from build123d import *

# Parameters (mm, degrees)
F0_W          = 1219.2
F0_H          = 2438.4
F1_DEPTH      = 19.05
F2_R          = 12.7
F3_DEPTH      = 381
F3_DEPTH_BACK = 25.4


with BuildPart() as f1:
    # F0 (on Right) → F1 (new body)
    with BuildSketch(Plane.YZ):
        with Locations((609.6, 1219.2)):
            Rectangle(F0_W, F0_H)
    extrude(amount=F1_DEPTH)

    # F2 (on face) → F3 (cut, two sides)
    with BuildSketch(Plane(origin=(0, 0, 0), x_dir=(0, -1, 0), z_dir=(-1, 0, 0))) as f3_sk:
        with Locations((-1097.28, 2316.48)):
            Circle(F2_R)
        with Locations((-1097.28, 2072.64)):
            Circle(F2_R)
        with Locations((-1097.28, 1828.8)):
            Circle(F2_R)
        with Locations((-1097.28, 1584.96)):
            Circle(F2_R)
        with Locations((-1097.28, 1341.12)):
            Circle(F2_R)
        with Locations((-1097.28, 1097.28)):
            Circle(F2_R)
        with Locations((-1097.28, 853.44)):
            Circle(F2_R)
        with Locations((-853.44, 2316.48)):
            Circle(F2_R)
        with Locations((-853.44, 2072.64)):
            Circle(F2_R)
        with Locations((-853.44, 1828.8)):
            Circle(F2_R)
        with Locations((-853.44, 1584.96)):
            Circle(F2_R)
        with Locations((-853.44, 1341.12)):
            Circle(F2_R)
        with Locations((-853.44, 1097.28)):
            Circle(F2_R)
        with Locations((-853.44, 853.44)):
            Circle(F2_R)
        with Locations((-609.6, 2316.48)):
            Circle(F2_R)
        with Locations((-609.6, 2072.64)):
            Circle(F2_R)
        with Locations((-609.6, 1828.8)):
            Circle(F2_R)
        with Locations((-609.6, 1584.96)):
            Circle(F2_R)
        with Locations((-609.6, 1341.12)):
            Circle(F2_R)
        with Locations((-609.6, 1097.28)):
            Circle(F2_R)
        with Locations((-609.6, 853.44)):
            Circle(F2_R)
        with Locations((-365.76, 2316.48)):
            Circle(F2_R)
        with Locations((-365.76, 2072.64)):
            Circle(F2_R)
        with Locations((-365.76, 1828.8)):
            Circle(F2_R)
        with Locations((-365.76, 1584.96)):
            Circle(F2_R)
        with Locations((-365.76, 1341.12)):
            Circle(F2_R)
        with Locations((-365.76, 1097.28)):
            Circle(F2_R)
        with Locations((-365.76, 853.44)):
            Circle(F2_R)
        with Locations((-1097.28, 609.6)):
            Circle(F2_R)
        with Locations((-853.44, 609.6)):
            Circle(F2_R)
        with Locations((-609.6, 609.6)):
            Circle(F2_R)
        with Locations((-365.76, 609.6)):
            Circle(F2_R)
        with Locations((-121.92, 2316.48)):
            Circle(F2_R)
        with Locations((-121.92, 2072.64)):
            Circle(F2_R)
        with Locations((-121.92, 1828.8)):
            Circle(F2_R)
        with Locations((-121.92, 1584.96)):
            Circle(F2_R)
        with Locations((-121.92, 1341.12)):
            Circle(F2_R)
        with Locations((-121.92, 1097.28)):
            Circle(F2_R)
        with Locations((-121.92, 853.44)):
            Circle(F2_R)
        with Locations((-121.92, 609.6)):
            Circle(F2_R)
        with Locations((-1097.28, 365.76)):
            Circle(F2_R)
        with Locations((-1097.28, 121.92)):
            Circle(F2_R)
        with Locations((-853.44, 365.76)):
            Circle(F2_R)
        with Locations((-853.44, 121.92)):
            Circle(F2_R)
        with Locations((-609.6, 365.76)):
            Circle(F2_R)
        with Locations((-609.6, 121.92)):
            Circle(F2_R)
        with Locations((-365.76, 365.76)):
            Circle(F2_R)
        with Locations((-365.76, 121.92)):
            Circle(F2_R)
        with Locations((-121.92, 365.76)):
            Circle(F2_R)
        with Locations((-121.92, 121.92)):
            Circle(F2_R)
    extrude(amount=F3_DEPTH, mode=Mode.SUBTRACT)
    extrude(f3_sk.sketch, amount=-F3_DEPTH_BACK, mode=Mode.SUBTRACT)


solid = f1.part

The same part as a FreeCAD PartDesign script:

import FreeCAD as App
import Part
import Sketcher
Q = App.Units.Quantity


def add_polygon(sketch, points):
    """Adds a closed chain of lines whose ends are joined by coincident constraints."""
    first, n = sketch.GeometryCount, len(points)
    for a, b in zip(points, points[1:] + points[:1]):
        sketch.addGeometry(Part.LineSegment(App.Vector(*a, 0), App.Vector(*b, 0)), False)
    for i in range(n):
        sketch.addConstraint(Sketcher.Constraint("Coincident", first + i, 2, first + (i + 1) % n, 1))

doc = App.newDocument("Part")
body = doc.addObject("PartDesign::Body", "Body")

# Sketch on YZ plane
sketch1 = body.newObject("Sketcher::SketchObject", "Sketch")
sketch1.AttachmentSupport = (doc.getObject("YZ_Plane"), [""])
sketch1.MapMode = "FlatFace"
add_polygon(sketch1, [(0, 2438.4), (0, 0), (1219.2, 0), (1219.2, 2438.4)])  # lines 0-3
sketch1.addConstraint(Sketcher.Constraint("Vertical", 0))
sketch1.addConstraint(Sketcher.Constraint("Horizontal", 1))
sketch1.addConstraint(Sketcher.Constraint("Vertical", 2))
sketch1.addConstraint(Sketcher.Constraint("Horizontal", 3))
sketch1.addConstraint(Sketcher.Constraint("Coincident", 0, 2, -1, 1))
sketch1.addConstraint(Sketcher.Constraint("DistanceX", 1, 1, 1, 2, Q("48 in")))
sketch1.addConstraint(Sketcher.Constraint("DistanceY", 0, 2, 0, 1, Q("96 in")))
pad1 = body.newObject("PartDesign::Pad", "Pad")
pad1.Profile = sketch1
pad1.Length = Q("0.75 in")

# Sketch on YZ plane
sketch2 = body.newObject("Sketcher::SketchObject", "Sketch001")
sketch2.AttachmentSupport = (doc.getObject("YZ_Plane"), [""])
sketch2.MapMode = "FlatFace"
sketch2.addGeometry(Part.Circle(App.Vector(1097.28, 2316.48, 0), App.Vector(0, 0, 1), 12.7), False)
sketch2.addGeometry(Part.Circle(App.Vector(1097.28, 2072.64, 0), App.Vector(0, 0, 1), 12.7), False)
sketch2.addGeometry(Part.Circle(App.Vector(1097.28, 1828.8, 0), App.Vector(0, 0, 1), 12.7), False)
sketch2.addGeometry(Part.Circle(App.Vector(1097.28, 1584.96, 0), App.Vector(0, 0, 1), 12.7), False)
sketch2.addGeometry(Part.Circle(App.Vector(1097.28, 1341.12, 0), App.Vector(0, 0, 1), 12.7), False)
sketch2.addGeometry(Part.Circle(App.Vector(1097.28, 1097.28, 0), App.Vector(0, 0, 1), 12.7), False)
sketch2.addGeometry(Part.Circle(App.Vector(1097.28, 853.44, 0), App.Vector(0, 0, 1), 12.7), False)
sketch2.addGeometry(Part.Circle(App.Vector(853.44, 2316.48, 0), App.Vector(0, 0, 1), 12.7), False)
sketch2.addGeometry(Part.Circle(App.Vector(853.44, 2072.64, 0), App.Vector(0, 0, 1), 12.7), False)
sketch2.addGeometry(Part.Circle(App.Vector(853.44, 1828.8, 0), App.Vector(0, 0, 1), 12.7), False)
sketch2.addGeometry(Part.Circle(App.Vector(853.44, 1584.96, 0), App.Vector(0, 0, 1), 12.7), False)
sketch2.addGeometry(Part.Circle(App.Vector(853.44, 1341.12, 0), App.Vector(0, 0, 1), 12.7), False)
sketch2.addGeometry(Part.Circle(App.Vector(853.44, 1097.28, 0), App.Vector(0, 0, 1), 12.7), False)
sketch2.addGeometry(Part.Circle(App.Vector(853.44, 853.44, 0), App.Vector(0, 0, 1), 12.7), False)
sketch2.addGeometry(Part.Circle(App.Vector(609.6, 2316.48, 0), App.Vector(0, 0, 1), 12.7), False)
sketch2.addGeometry(Part.Circle(App.Vector(609.6, 2072.64, 0), App.Vector(0, 0, 1), 12.7), False)
sketch2.addGeometry(Part.Circle(App.Vector(609.6, 1828.8, 0), App.Vector(0, 0, 1), 12.7), False)
sketch2.addGeometry(Part.Circle(App.Vector(609.6, 1584.96, 0), App.Vector(0, 0, 1), 12.7), False)
sketch2.addGeometry(Part.Circle(App.Vector(609.6, 1341.12, 0), App.Vector(0, 0, 1), 12.7), False)
sketch2.addGeometry(Part.Circle(App.Vector(609.6, 1097.28, 0), App.Vector(0, 0, 1), 12.7), False)
sketch2.addGeometry(Part.Circle(App.Vector(609.6, 853.44, 0), App.Vector(0, 0, 1), 12.7), False)
sketch2.addGeometry(Part.Circle(App.Vector(365.76, 2316.48, 0), App.Vector(0, 0, 1), 12.7), False)
sketch2.addGeometry(Part.Circle(App.Vector(365.76, 2072.64, 0), App.Vector(0, 0, 1), 12.7), False)
sketch2.addGeometry(Part.Circle(App.Vector(365.76, 1828.8, 0), App.Vector(0, 0, 1), 12.7), False)
sketch2.addGeometry(Part.Circle(App.Vector(365.76, 1584.96, 0), App.Vector(0, 0, 1), 12.7), False)
sketch2.addGeometry(Part.Circle(App.Vector(365.76, 1341.12, 0), App.Vector(0, 0, 1), 12.7), False)
sketch2.addGeometry(Part.Circle(App.Vector(365.76, 1097.28, 0), App.Vector(0, 0, 1), 12.7), False)
sketch2.addGeometry(Part.Circle(App.Vector(365.76, 853.44, 0), App.Vector(0, 0, 1), 12.7), False)
sketch2.addGeometry(Part.Circle(App.Vector(1097.28, 609.6, 0), App.Vector(0, 0, 1), 12.7), False)
sketch2.addGeometry(Part.Circle(App.Vector(853.44, 609.6, 0), App.Vector(0, 0, 1), 12.7), False)
sketch2.addGeometry(Part.Circle(App.Vector(609.6, 609.6, 0), App.Vector(0, 0, 1), 12.7), False)
sketch2.addGeometry(Part.Circle(App.Vector(365.76, 609.6, 0), App.Vector(0, 0, 1), 12.7), False)
sketch2.addGeometry(Part.Circle(App.Vector(121.92, 2316.48, 0), App.Vector(0, 0, 1), 12.7), False)
sketch2.addGeometry(Part.Circle(App.Vector(121.92, 2072.64, 0), App.Vector(0, 0, 1), 12.7), False)
sketch2.addGeometry(Part.Circle(App.Vector(121.92, 1828.8, 0), App.Vector(0, 0, 1), 12.7), False)
sketch2.addGeometry(Part.Circle(App.Vector(121.92, 1584.96, 0), App.Vector(0, 0, 1), 12.7), False)
sketch2.addGeometry(Part.Circle(App.Vector(121.92, 1341.12, 0), App.Vector(0, 0, 1), 12.7), False)
sketch2.addGeometry(Part.Circle(App.Vector(121.92, 1097.28, 0), App.Vector(0, 0, 1), 12.7), False)
sketch2.addGeometry(Part.Circle(App.Vector(121.92, 853.44, 0), App.Vector(0, 0, 1), 12.7), False)
sketch2.addGeometry(Part.Circle(App.Vector(121.92, 609.6, 0), App.Vector(0, 0, 1), 12.7), False)
sketch2.addGeometry(Part.Circle(App.Vector(1097.28, 365.76, 0), App.Vector(0, 0, 1), 12.7), False)
sketch2.addGeometry(Part.Circle(App.Vector(1097.28, 121.92, 0), App.Vector(0, 0, 1), 12.7), False)
sketch2.addGeometry(Part.Circle(App.Vector(853.44, 365.76, 0), App.Vector(0, 0, 1), 12.7), False)
sketch2.addGeometry(Part.Circle(App.Vector(853.44, 121.92, 0), App.Vector(0, 0, 1), 12.7), False)
sketch2.addGeometry(Part.Circle(App.Vector(609.6, 365.76, 0), App.Vector(0, 0, 1), 12.7), False)
sketch2.addGeometry(Part.Circle(App.Vector(609.6, 121.92, 0), App.Vector(0, 0, 1), 12.7), False)
sketch2.addGeometry(Part.Circle(App.Vector(365.76, 365.76, 0), App.Vector(0, 0, 1), 12.7), False)
sketch2.addGeometry(Part.Circle(App.Vector(365.76, 121.92, 0), App.Vector(0, 0, 1), 12.7), False)
sketch2.addGeometry(Part.Circle(App.Vector(121.92, 365.76, 0), App.Vector(0, 0, 1), 12.7), False)
sketch2.addGeometry(Part.Circle(App.Vector(121.92, 121.92, 0), App.Vector(0, 0, 1), 12.7), False)
sketch2.addConstraint(Sketcher.Constraint("Equal", 0, 1))
sketch2.addConstraint(Sketcher.Constraint("Equal", 1, 2))
sketch2.addConstraint(Sketcher.Constraint("Equal", 2, 3))
sketch2.addConstraint(Sketcher.Constraint("Equal", 3, 4))
sketch2.addConstraint(Sketcher.Constraint("Equal", 4, 5))
sketch2.addConstraint(Sketcher.Constraint("Equal", 5, 6))
sketch2.addConstraint(Sketcher.Constraint("Equal", 6, 7))
sketch2.addConstraint(Sketcher.Constraint("Equal", 7, 8))
sketch2.addConstraint(Sketcher.Constraint("Equal", 8, 9))
sketch2.addConstraint(Sketcher.Constraint("Equal", 9, 10))
sketch2.addConstraint(Sketcher.Constraint("Equal", 10, 11))
sketch2.addConstraint(Sketcher.Constraint("Equal", 11, 12))
sketch2.addConstraint(Sketcher.Constraint("Equal", 12, 13))
sketch2.addConstraint(Sketcher.Constraint("Equal", 13, 14))
sketch2.addConstraint(Sketcher.Constraint("Equal", 14, 15))
sketch2.addConstraint(Sketcher.Constraint("Equal", 15, 16))
sketch2.addConstraint(Sketcher.Constraint("Equal", 16, 17))
sketch2.addConstraint(Sketcher.Constraint("Equal", 17, 18))
sketch2.addConstraint(Sketcher.Constraint("Equal", 18, 19))
sketch2.addConstraint(Sketcher.Constraint("Equal", 19, 20))
sketch2.addConstraint(Sketcher.Constraint("Equal", 20, 21))
sketch2.addConstraint(Sketcher.Constraint("Equal", 21, 22))
sketch2.addConstraint(Sketcher.Constraint("Equal", 22, 23))
sketch2.addConstraint(Sketcher.Constraint("Equal", 23, 24))
sketch2.addConstraint(Sketcher.Constraint("Equal", 24, 25))
sketch2.addConstraint(Sketcher.Constraint("Equal", 25, 26))
sketch2.addConstraint(Sketcher.Constraint("Equal", 26, 27))
sketch2.addConstraint(Sketcher.Constraint("Equal", 27, 28))
sketch2.addConstraint(Sketcher.Constraint("Equal", 28, 29))
sketch2.addConstraint(Sketcher.Constraint("Equal", 29, 30))
sketch2.addConstraint(Sketcher.Constraint("Equal", 30, 31))
sketch2.addConstraint(Sketcher.Constraint("Equal", 31, 32))
sketch2.addConstraint(Sketcher.Constraint("Equal", 32, 33))
sketch2.addConstraint(Sketcher.Constraint("Equal", 33, 34))
sketch2.addConstraint(Sketcher.Constraint("Equal", 34, 35))
sketch2.addConstraint(Sketcher.Constraint("Equal", 35, 36))
sketch2.addConstraint(Sketcher.Constraint("Equal", 36, 37))
sketch2.addConstraint(Sketcher.Constraint("Equal", 37, 38))
sketch2.addConstraint(Sketcher.Constraint("Equal", 38, 39))
sketch2.addConstraint(Sketcher.Constraint("Equal", 39, 40))
sketch2.addConstraint(Sketcher.Constraint("Equal", 40, 41))
sketch2.addConstraint(Sketcher.Constraint("Equal", 41, 42))
sketch2.addConstraint(Sketcher.Constraint("Equal", 42, 43))
sketch2.addConstraint(Sketcher.Constraint("Equal", 43, 44))
sketch2.addConstraint(Sketcher.Constraint("Equal", 44, 45))
sketch2.addConstraint(Sketcher.Constraint("Equal", 45, 46))
sketch2.addConstraint(Sketcher.Constraint("Equal", 46, 47))
sketch2.addConstraint(Sketcher.Constraint("Equal", 47, 48))
sketch2.addConstraint(Sketcher.Constraint("Equal", 48, 49))
sketch2.addConstraint(Sketcher.Constraint("Horizontal", 0, 3, 7, 3))
sketch2.addConstraint(Sketcher.Constraint("Horizontal", 1, 3, 8, 3))
sketch2.addConstraint(Sketcher.Constraint("Horizontal", 2, 3, 9, 3))
sketch2.addConstraint(Sketcher.Constraint("Horizontal", 3, 3, 10, 3))
sketch2.addConstraint(Sketcher.Constraint("Horizontal", 4, 3, 11, 3))
sketch2.addConstraint(Sketcher.Constraint("Horizontal", 5, 3, 12, 3))
sketch2.addConstraint(Sketcher.Constraint("Horizontal", 6, 3, 13, 3))
sketch2.addConstraint(Sketcher.Constraint("Horizontal", 7, 3, 14, 3))
sketch2.addConstraint(Sketcher.Constraint("Horizontal", 8, 3, 15, 3))
sketch2.addConstraint(Sketcher.Constraint("Horizontal", 9, 3, 16, 3))
sketch2.addConstraint(Sketcher.Constraint("Horizontal", 10, 3, 17, 3))
sketch2.addConstraint(Sketcher.Constraint("Horizontal", 11, 3, 18, 3))
sketch2.addConstraint(Sketcher.Constraint("Horizontal", 12, 3, 19, 3))
sketch2.addConstraint(Sketcher.Constraint("Horizontal", 13, 3, 20, 3))
sketch2.addConstraint(Sketcher.Constraint("Horizontal", 14, 3, 21, 3))
sketch2.addConstraint(Sketcher.Constraint("Horizontal", 15, 3, 22, 3))
sketch2.addConstraint(Sketcher.Constraint("Horizontal", 16, 3, 23, 3))
sketch2.addConstraint(Sketcher.Constraint("Horizontal", 17, 3, 24, 3))
sketch2.addConstraint(Sketcher.Constraint("Horizontal", 18, 3, 25, 3))
sketch2.addConstraint(Sketcher.Constraint("Horizontal", 19, 3, 26, 3))
sketch2.addConstraint(Sketcher.Constraint("Horizontal", 20, 3, 27, 3))
sketch2.addConstraint(Sketcher.Constraint("Horizontal", 28, 3, 29, 3))
sketch2.addConstraint(Sketcher.Constraint("Horizontal", 29, 3, 30, 3))
sketch2.addConstraint(Sketcher.Constraint("Horizontal", 30, 3, 31, 3))
sketch2.addConstraint(Sketcher.Constraint("Horizontal", 21, 3, 32, 3))
sketch2.addConstraint(Sketcher.Constraint("Horizontal", 22, 3, 33, 3))
sketch2.addConstraint(Sketcher.Constraint("Horizontal", 23, 3, 34, 3))
sketch2.addConstraint(Sketcher.Constraint("Horizontal", 24, 3, 35, 3))
sketch2.addConstraint(Sketcher.Constraint("Horizontal", 25, 3, 36, 3))
sketch2.addConstraint(Sketcher.Constraint("Horizontal", 26, 3, 37, 3))
sketch2.addConstraint(Sketcher.Constraint("Horizontal", 27, 3, 38, 3))
sketch2.addConstraint(Sketcher.Constraint("Horizontal", 31, 3, 39, 3))
sketch2.addConstraint(Sketcher.Constraint("Horizontal", 40, 3, 42, 3))
sketch2.addConstraint(Sketcher.Constraint("Horizontal", 41, 3, 43, 3))
sketch2.addConstraint(Sketcher.Constraint("Horizontal", 42, 3, 44, 3))
sketch2.addConstraint(Sketcher.Constraint("Horizontal", 43, 3, 45, 3))
sketch2.addConstraint(Sketcher.Constraint("Horizontal", 44, 3, 46, 3))
sketch2.addConstraint(Sketcher.Constraint("Horizontal", 45, 3, 47, 3))
sketch2.addConstraint(Sketcher.Constraint("Horizontal", 46, 3, 48, 3))
sketch2.addConstraint(Sketcher.Constraint("Horizontal", 47, 3, 49, 3))
sketch2.addConstraint(Sketcher.Constraint("Vertical", 0, 3, 1, 3))
sketch2.addConstraint(Sketcher.Constraint("Vertical", 1, 3, 2, 3))
sketch2.addConstraint(Sketcher.Constraint("Vertical", 2, 3, 3, 3))
sketch2.addConstraint(Sketcher.Constraint("Vertical", 3, 3, 4, 3))
sketch2.addConstraint(Sketcher.Constraint("Vertical", 4, 3, 5, 3))
sketch2.addConstraint(Sketcher.Constraint("Vertical", 5, 3, 6, 3))
sketch2.addConstraint(Sketcher.Constraint("Vertical", 7, 3, 8, 3))
sketch2.addConstraint(Sketcher.Constraint("Vertical", 8, 3, 9, 3))
sketch2.addConstraint(Sketcher.Constraint("Vertical", 9, 3, 10, 3))
sketch2.addConstraint(Sketcher.Constraint("Vertical", 10, 3, 11, 3))
sketch2.addConstraint(Sketcher.Constraint("Vertical", 11, 3, 12, 3))
sketch2.addConstraint(Sketcher.Constraint("Vertical", 12, 3, 13, 3))
sketch2.addConstraint(Sketcher.Constraint("Vertical", 14, 3, 15, 3))
sketch2.addConstraint(Sketcher.Constraint("Vertical", 15, 3, 16, 3))
sketch2.addConstraint(Sketcher.Constraint("Vertical", 16, 3, 17, 3))
sketch2.addConstraint(Sketcher.Constraint("Vertical", 17, 3, 18, 3))
sketch2.addConstraint(Sketcher.Constraint("Vertical", 18, 3, 19, 3))
sketch2.addConstraint(Sketcher.Constraint("Vertical", 19, 3, 20, 3))
sketch2.addConstraint(Sketcher.Constraint("Vertical", 21, 3, 22, 3))
sketch2.addConstraint(Sketcher.Constraint("Vertical", 22, 3, 23, 3))
sketch2.addConstraint(Sketcher.Constraint("Vertical", 23, 3, 24, 3))
sketch2.addConstraint(Sketcher.Constraint("Vertical", 24, 3, 25, 3))
sketch2.addConstraint(Sketcher.Constraint("Vertical", 25, 3, 26, 3))
sketch2.addConstraint(Sketcher.Constraint("Vertical", 26, 3, 27, 3))
sketch2.addConstraint(Sketcher.Constraint("Vertical", 6, 3, 28, 3))
sketch2.addConstraint(Sketcher.Constraint("Vertical", 13, 3, 29, 3))
sketch2.addConstraint(Sketcher.Constraint("Vertical", 20, 3, 30, 3))
sketch2.addConstraint(Sketcher.Constraint("Vertical", 27, 3, 31, 3))
sketch2.addConstraint(Sketcher.Constraint("Vertical", 32, 3, 33, 3))
sketch2.addConstraint(Sketcher.Constraint("Vertical", 33, 3, 34, 3))
sketch2.addConstraint(Sketcher.Constraint("Vertical", 34, 3, 35, 3))
sketch2.addConstraint(Sketcher.Constraint("Vertical", 35, 3, 36, 3))
sketch2.addConstraint(Sketcher.Constraint("Vertical", 36, 3, 37, 3))
sketch2.addConstraint(Sketcher.Constraint("Vertical", 37, 3, 38, 3))
sketch2.addConstraint(Sketcher.Constraint("Vertical", 38, 3, 39, 3))
sketch2.addConstraint(Sketcher.Constraint("Vertical", 28, 3, 40, 3))
sketch2.addConstraint(Sketcher.Constraint("Vertical", 40, 3, 41, 3))
sketch2.addConstraint(Sketcher.Constraint("Vertical", 29, 3, 42, 3))
sketch2.addConstraint(Sketcher.Constraint("Vertical", 42, 3, 43, 3))
sketch2.addConstraint(Sketcher.Constraint("Vertical", 30, 3, 44, 3))
sketch2.addConstraint(Sketcher.Constraint("Vertical", 44, 3, 45, 3))
sketch2.addConstraint(Sketcher.Constraint("Vertical", 31, 3, 46, 3))
sketch2.addConstraint(Sketcher.Constraint("Vertical", 46, 3, 47, 3))
sketch2.addConstraint(Sketcher.Constraint("Vertical", 39, 3, 48, 3))
sketch2.addConstraint(Sketcher.Constraint("Vertical", 48, 3, 49, 3))
sketch2.addConstraint(Sketcher.Constraint("Diameter", 0, Q("1 in")))
sketch2.addConstraint(Sketcher.Constraint("DistanceY", -1, 1, 2, 3, Q("72 in")))
sketch2.addConstraint(Sketcher.Constraint("DistanceX", -1, 1, 14, 3, Q("24 in")))
sketch2.addConstraint(Sketcher.Constraint("DistanceY", -1, 1, 28, 3, Q("24 in")))
sketch2.addConstraint(Sketcher.Constraint("DistanceY", 5, 3, 0, 3, Q("48 in")))
sketch2.addConstraint(Sketcher.Constraint("DistanceY", 6, 3, 1, 3, Q("48 in")))
sketch2.addConstraint(Sketcher.Constraint("DistanceX", -1, 1, 0, 3, Q("43.2 in")))
sketch2.addConstraint(Sketcher.Constraint("DistanceY", -1, 1, 0, 3, Q("91.2 in")))
sketch2.addConstraint(Sketcher.Constraint("DistanceY", -1, 1, 1, 3, Q("81.6 in")))
sketch2.addConstraint(Sketcher.Constraint("DistanceY", -1, 1, 3, 3, Q("62.4 in")))
sketch2.addConstraint(Sketcher.Constraint("DistanceY", -1, 1, 4, 3, Q("52.8 in")))
sketch2.addConstraint(Sketcher.Constraint("DistanceX", -1, 1, 7, 3, Q("33.6 in")))
sketch2.addConstraint(Sketcher.Constraint("DistanceX", -1, 1, 21, 3, Q("14.4 in")))
sketch2.addConstraint(Sketcher.Constraint("DistanceX", -1, 1, 32, 3, Q("4.8 in")))
sketch2.addConstraint(Sketcher.Constraint("DistanceY", -1, 1, 40, 3, Q("14.4 in")))
sketch2.addConstraint(Sketcher.Constraint("DistanceY", -1, 1, 41, 3, Q("4.8 in")))
pocket1 = body.newObject("PartDesign::Pocket", "Pocket")
pocket1.Profile = sketch2
pocket1.Type = "ThroughAll"
pocket1.Midplane = True

doc.recompute()
